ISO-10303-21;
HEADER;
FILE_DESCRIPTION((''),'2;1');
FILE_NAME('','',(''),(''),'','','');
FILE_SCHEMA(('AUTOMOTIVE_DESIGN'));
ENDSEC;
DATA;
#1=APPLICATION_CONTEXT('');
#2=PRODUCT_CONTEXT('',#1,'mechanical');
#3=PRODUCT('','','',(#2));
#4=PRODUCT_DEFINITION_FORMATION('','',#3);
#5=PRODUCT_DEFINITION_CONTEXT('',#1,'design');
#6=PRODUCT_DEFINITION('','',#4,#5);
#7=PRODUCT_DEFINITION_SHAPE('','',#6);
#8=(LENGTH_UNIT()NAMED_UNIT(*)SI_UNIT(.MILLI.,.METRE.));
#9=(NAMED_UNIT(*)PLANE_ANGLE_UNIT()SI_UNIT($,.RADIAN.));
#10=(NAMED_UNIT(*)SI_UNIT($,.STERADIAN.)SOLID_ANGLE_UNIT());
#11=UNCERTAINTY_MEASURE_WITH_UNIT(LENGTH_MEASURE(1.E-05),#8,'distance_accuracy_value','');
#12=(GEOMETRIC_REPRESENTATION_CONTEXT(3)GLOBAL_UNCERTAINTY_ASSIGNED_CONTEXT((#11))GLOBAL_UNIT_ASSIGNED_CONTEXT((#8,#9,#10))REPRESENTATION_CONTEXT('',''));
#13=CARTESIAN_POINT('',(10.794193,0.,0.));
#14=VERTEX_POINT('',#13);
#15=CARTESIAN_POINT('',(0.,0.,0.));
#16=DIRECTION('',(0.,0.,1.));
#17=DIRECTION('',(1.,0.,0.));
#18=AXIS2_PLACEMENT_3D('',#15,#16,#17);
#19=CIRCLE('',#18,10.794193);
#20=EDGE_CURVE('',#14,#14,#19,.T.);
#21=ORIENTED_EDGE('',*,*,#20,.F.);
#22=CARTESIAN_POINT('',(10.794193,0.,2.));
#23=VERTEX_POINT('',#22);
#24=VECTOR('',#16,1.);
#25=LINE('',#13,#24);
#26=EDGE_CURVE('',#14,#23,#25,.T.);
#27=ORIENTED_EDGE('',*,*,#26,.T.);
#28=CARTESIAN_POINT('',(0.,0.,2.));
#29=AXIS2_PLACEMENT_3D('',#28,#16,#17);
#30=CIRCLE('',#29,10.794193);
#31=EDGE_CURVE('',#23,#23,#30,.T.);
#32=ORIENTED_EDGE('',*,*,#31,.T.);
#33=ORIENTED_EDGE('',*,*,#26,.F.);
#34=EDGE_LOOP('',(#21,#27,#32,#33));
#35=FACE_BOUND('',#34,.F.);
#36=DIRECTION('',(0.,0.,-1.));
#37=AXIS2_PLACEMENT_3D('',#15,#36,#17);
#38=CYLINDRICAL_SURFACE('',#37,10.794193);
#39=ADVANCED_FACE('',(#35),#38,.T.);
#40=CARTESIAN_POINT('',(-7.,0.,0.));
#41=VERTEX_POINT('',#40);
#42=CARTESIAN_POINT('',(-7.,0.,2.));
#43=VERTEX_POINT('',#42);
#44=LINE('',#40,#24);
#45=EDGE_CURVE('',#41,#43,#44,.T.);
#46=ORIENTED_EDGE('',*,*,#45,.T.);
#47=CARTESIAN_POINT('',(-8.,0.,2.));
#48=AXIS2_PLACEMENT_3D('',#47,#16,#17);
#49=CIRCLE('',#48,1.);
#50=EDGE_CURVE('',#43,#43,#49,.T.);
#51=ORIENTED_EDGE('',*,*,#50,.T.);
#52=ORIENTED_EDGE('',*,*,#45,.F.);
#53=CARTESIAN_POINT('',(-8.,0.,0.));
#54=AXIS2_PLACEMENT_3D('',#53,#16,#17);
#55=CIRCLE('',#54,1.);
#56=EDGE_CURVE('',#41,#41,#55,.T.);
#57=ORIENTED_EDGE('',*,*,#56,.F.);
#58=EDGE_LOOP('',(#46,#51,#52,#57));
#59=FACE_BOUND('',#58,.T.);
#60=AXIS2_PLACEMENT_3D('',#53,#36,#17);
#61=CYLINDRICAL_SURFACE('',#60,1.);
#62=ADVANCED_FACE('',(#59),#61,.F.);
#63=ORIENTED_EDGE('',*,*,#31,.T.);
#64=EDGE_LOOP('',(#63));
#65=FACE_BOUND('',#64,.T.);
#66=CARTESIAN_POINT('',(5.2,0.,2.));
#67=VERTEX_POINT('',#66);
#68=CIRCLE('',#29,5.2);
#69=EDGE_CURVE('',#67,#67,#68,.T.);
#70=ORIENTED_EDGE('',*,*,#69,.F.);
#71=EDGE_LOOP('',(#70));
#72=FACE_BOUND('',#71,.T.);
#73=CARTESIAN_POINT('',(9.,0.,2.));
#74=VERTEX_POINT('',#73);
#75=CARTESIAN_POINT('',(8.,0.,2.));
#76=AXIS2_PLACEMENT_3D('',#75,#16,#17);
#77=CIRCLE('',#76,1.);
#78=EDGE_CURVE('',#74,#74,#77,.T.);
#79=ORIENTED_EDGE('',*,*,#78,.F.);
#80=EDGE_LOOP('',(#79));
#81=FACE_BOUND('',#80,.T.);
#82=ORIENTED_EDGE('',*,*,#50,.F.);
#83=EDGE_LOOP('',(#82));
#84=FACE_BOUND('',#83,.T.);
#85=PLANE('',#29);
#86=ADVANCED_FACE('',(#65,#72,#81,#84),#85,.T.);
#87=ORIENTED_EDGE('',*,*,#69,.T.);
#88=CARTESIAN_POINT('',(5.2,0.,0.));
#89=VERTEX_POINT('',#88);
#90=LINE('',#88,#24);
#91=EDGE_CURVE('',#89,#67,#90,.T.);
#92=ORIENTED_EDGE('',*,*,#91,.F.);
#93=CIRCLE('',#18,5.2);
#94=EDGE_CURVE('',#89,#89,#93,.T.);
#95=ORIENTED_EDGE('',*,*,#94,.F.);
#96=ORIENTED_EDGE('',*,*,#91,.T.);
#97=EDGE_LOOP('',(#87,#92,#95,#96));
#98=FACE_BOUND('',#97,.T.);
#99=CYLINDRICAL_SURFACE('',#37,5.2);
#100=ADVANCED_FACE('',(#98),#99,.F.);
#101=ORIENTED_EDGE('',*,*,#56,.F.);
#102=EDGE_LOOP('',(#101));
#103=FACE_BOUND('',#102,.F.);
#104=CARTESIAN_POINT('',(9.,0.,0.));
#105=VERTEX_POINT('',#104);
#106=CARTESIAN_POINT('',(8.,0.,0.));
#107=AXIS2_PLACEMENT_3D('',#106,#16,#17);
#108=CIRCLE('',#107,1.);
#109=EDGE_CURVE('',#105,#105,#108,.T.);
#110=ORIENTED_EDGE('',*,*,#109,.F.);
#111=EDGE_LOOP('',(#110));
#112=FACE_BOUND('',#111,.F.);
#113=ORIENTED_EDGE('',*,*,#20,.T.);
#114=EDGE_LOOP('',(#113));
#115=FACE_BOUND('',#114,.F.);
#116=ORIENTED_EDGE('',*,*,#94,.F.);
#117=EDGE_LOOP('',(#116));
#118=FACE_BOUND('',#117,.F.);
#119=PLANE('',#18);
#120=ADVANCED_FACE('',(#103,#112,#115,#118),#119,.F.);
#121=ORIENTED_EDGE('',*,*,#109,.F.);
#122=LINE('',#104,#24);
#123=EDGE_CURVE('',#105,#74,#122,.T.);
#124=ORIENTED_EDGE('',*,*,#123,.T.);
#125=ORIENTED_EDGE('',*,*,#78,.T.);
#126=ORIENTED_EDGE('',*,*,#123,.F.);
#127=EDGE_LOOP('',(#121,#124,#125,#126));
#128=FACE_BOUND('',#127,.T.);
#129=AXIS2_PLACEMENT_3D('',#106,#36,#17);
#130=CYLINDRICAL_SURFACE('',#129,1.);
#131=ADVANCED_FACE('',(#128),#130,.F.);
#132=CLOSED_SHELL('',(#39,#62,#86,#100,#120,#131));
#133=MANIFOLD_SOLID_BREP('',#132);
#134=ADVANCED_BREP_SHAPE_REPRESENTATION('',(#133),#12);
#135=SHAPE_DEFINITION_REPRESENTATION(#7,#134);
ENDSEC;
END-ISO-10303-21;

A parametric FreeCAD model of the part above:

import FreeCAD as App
import Part
import Sketcher
from FreeCAD import Vector

doc = App.newDocument("Part")
body = doc.addObject("PartDesign::Body", "Body")

# Sketch on XY plane
sketch1 = body.newObject("Sketcher::SketchObject", "Sketch")
sketch1.AttachmentSupport = (doc.getObject("XY_Plane"), [""])
sketch1.MapMode = "FlatFace"
sketch1.addGeometry(Part.Circle(Vector(0, 0, 0), Vector(0, 0, 1), 10.8), False)
sketch1.addGeometry(Part.Circle(Vector(-8, 0, 0), Vector(0, 0, 1), 1), False)
sketch1.addGeometry(Part.Circle(Vector(0, 0, 0), Vector(0, 0, 1), 5.2), False)
sketch1.addGeometry(Part.Circle(Vector(8, 0, 0), Vector(0, 0, 1), 1), False)
sketch1.addConstraint(Sketcher.Constraint("Coincident", 0, 3, -1, 1))
sketch1.addConstraint(Sketcher.Constraint("Coincident", 2, 3, -1, 1))
sketch1.addConstraint(Sketcher.Constraint("Equal", 1, 3))
sketch1.addConstraint(Sketcher.Constraint("Symmetric", 1, 3, 3, 3, -1, 1))
sketch1.addConstraint(Sketcher.Constraint("PointOnObject", 1, 3, -1))
sketch1.addConstraint(Sketcher.Constraint("Diameter", 1, 2.0))
sketch1.addConstraint(Sketcher.Constraint("Diameter", 2, 10.4))
sketch1.addConstraint(Sketcher.Constraint("DistanceX", 1, 3, -1, 1, 8.0))
sketch1.addConstraint(Sketcher.Constraint("Diameter", 0, 21.588386))
pad1 = body.newObject("PartDesign::Pad", "Pad")
pad1.Profile = sketch1
pad1.Length = 2

doc.recompute()
